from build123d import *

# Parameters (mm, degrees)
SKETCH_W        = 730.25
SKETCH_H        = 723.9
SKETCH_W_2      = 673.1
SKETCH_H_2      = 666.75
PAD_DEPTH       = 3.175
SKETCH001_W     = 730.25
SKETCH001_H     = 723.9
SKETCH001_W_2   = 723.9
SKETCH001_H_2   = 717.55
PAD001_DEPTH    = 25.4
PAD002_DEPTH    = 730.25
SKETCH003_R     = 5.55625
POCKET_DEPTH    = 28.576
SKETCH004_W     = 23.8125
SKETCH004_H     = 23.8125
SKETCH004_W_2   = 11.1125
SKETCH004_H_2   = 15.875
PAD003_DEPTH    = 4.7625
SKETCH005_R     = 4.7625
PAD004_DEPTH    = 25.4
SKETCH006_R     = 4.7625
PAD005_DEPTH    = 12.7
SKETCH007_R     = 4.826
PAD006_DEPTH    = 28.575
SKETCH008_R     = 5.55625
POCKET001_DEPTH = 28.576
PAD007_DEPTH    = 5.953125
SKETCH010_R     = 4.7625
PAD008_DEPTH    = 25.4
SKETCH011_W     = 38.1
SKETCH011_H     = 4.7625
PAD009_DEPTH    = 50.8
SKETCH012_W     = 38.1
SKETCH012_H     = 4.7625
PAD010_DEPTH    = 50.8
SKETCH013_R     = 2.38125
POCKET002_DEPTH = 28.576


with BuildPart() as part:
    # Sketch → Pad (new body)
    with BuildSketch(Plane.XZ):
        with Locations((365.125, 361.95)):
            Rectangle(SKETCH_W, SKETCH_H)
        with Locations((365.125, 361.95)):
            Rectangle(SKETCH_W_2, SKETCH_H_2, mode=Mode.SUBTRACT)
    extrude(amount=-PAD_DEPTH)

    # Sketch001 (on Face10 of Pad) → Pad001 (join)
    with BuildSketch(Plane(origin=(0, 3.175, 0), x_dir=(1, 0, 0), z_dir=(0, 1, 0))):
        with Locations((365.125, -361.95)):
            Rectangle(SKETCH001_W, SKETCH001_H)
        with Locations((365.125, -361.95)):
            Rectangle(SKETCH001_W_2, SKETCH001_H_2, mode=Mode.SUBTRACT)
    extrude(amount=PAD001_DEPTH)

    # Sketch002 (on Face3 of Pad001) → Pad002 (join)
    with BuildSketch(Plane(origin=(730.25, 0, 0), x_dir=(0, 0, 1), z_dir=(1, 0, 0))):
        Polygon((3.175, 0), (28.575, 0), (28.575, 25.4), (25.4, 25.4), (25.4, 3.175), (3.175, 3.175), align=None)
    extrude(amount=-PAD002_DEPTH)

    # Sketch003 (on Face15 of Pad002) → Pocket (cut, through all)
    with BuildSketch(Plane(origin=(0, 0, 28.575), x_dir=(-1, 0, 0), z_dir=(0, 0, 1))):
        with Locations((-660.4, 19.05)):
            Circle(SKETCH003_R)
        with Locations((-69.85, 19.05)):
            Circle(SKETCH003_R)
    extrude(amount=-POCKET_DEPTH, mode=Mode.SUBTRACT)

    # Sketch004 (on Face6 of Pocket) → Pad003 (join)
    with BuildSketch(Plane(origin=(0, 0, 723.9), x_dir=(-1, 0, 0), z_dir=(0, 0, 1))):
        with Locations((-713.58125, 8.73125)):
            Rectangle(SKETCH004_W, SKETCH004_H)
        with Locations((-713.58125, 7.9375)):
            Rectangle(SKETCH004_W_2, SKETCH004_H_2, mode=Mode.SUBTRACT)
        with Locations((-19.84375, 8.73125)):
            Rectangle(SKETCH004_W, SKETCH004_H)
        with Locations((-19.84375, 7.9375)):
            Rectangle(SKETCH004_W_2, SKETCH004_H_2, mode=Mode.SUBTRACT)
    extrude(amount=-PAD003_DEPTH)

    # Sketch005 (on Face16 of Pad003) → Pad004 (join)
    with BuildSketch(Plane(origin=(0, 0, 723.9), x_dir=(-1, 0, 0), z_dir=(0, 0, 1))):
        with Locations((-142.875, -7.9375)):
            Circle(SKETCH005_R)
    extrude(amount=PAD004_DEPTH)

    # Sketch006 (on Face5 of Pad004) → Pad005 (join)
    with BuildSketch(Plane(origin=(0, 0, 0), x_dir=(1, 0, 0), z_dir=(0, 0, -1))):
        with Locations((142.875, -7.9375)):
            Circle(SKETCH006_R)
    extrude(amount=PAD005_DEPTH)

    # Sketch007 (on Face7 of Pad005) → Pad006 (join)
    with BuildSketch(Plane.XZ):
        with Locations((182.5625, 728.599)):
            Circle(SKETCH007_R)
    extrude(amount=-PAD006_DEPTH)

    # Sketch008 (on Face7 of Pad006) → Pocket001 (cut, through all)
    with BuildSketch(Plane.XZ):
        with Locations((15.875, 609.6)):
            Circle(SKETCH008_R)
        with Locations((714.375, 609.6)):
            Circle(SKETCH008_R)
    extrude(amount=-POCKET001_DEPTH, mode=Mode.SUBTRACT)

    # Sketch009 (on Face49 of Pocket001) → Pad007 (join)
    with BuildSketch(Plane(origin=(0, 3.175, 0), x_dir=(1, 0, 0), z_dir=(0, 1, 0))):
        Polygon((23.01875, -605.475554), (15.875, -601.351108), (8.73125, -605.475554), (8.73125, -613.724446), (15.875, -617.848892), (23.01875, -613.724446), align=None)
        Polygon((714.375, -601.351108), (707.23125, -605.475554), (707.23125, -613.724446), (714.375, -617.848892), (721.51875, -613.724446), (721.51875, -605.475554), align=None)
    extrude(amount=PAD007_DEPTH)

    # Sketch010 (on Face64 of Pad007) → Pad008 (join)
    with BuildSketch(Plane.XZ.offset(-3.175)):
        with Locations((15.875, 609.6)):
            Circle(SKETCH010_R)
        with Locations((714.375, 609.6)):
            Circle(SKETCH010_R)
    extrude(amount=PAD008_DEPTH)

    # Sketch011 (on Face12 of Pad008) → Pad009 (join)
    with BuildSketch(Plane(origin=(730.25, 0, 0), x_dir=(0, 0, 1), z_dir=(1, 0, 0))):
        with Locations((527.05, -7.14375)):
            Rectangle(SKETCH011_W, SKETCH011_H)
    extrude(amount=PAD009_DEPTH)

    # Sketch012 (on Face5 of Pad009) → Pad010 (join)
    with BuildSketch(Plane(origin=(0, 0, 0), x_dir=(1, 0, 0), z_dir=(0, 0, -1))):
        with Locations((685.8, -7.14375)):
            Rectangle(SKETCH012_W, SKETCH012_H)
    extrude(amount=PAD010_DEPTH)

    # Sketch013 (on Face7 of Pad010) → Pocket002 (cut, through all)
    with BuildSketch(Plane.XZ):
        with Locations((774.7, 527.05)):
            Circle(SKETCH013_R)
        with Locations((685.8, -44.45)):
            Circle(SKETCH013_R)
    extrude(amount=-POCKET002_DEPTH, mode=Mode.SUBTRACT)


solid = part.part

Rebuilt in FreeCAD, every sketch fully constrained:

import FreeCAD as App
import Part
import Sketcher
from FreeCAD import Vector
Q = App.Units.Quantity


def add_polygon(sketch, points):
    """Adds a closed chain of lines whose ends are joined by coincident constraints."""
    first, n = sketch.GeometryCount, len(points)
    for a, b in zip(points, points[1:] + points[:1]):
        sketch.addGeometry(Part.LineSegment(App.Vector(*a, 0), App.Vector(*b, 0)), False)
    for i in range(n):
        sketch.addConstraint(Sketcher.Constraint("Coincident", first + i, 2, first + (i + 1) % n, 1))

doc = App.newDocument("Part")
body = doc.addObject("PartDesign::Body", "Body")

# Sketch on XZ plane
sketch1 = body.newObject("Sketcher::SketchObject", "Sketch")
sketch1.AttachmentSupport = (doc.getObject("XZ_Plane"), [""])
sketch1.MapMode = "FlatFace"
add_polygon(sketch1, [(0, 724), (0, 0), (730, 0), (730, 724)])  # lines 0-3
add_polygon(sketch1, [(702, 29), (29, 29), (29, 695), (702, 695)])  # lines 4-7
sketch1.addConstraint([
    Sketcher.Constraint("Vertical", 0),
    Sketcher.Constraint("Horizontal", 1),
    Sketcher.Constraint("Vertical", 2),
    Sketcher.Constraint("Horizontal", 3),
    Sketcher.Constraint("Horizontal", 4),
    Sketcher.Constraint("Vertical", 5),
    Sketcher.Constraint("Horizontal", 6),
    Sketcher.Constraint("Vertical", 7),
    Sketcher.Constraint("Coincident", 0, 2, -1, 1),
    Sketcher.Constraint("DistanceX", 4, 2, 4, 1, Q("26.5 in")),
    Sketcher.Constraint("DistanceY", 0, 2, 0, 1, Q("28.5 in")),
    Sketcher.Constraint("DistanceX", 1, 1, 1, 2, Q("28.75 in")),
    Sketcher.Constraint("DistanceY", 5, 1, 5, 2, Q("26.25 in")),
    Sketcher.Constraint("DistanceX", -1, 1, 4, 2, Q("1.125 in")),
    Sketcher.Constraint("DistanceY", -1, 1, 4, 2, Q("1.125 in")),
])
pad1 = body.newObject("PartDesign::Pad", "Pad")
pad1.Profile = sketch1
pad1.Length = Q("0.125 in")
pad1.Reversed = True

# Sketch on XZ plane
sketch2 = body.newObject("Sketcher::SketchObject", "Sketch001")
sketch2.AttachmentSupport = (doc.getObject("XZ_Plane"), [""])
sketch2.MapMode = "FlatFace"
sketch2.AttachmentOffset = App.Placement(Vector(0, 0, -0.125 * 25.4), App.Rotation())
add_polygon(sketch2, [(0, 0), (0, 724), (730, 724), (730, 0)])  # lines 0-3
add_polygon(sketch2, [(727, 721), (3, 721), (3, 3), (727, 3)])  # lines 4-7
sketch2.addConstraint([
    Sketcher.Constraint("Vertical", 0),
    Sketcher.Constraint("Horizontal", 1),
    Sketcher.Constraint("Vertical", 2),
    Sketcher.Constraint("Horizontal", 3),
    Sketcher.Constraint("Horizontal", 4),
    Sketcher.Constraint("Vertical", 5),
    Sketcher.Constraint("Horizontal", 6),
    Sketcher.Constraint("Vertical", 7),
    Sketcher.Constraint("Coincident", 3, 2, -1, 1),
    Sketcher.Constraint("Equal", 6, 0),
    Sketcher.Constraint("DistanceX", 4, 2, 4, 1, Q("28.5 in")),
    Sketcher.Constraint("DistanceX", 1, 1, 1, 2, Q("28.75 in")),
    Sketcher.Constraint("DistanceY", 5, 2, 5, 1, Q("28.25 in")),
    Sketcher.Constraint("DistanceX", -1, 1, 4, 2, Q("0.125 in")),
    Sketcher.Constraint("DistanceY", -1, 1, 4, 2, Q("28.375 in")),
])
pad2 = body.newObject("PartDesign::Pad", "Pad001")
pad2.Profile = sketch2
pad2.Length = Q("1 in")
pad2.Reversed = True

# Sketch on YZ plane
sketch3 = body.newObject("Sketcher::SketchObject", "Sketch002")
sketch3.AttachmentSupport = (doc.getObject("YZ_Plane"), [""])
sketch3.MapMode = "FlatFace"
sketch3.AttachmentOffset = App.Placement(Vector(0, 0, 28.75 * 25.4), App.Rotation())
add_polygon(sketch3, [(0, 3.2), (0, 28.6), (-25.4, 28.6), (-25.4, 25.4), (-3.2, 25.4), (-3.2, 3.2)])  # lines 0-5
sketch3.addConstraint([
    Sketcher.Constraint("Vertical", 0),
    Sketcher.Constraint("Horizontal", 1),
    Sketcher.Constraint("Vertical", 2),
    Sketcher.Constraint("Horizontal", 3),
    Sketcher.Constraint("Vertical", 4),
    Sketcher.Constraint("Horizontal", 5),
    Sketcher.Constraint("PointOnObject", 0, 2, -2),
    Sketcher.Constraint("Equal", 1, 0),
    Sketcher.Constraint("Equal", 5, 2),
    Sketcher.Constraint("DistanceX", 1, 2, 1, 1, Q("1 in")),
    Sketcher.Constraint("DistanceY", -1, 1, 2, 2, Q("1 in")),
    Sketcher.Constraint("DistanceX", 3, 1, 3, 2, Q("0.875 in")),
])
pad3 = body.newObject("PartDesign::Pad", "Pad002")
pad3.Profile = sketch3
pad3.Length = Q("28.75 in")
pad3.Reversed = True

# Sketch on XY plane
sketch4 = body.newObject("Sketcher::SketchObject", "Sketch003")
sketch4.AttachmentSupport = (doc.getObject("XY_Plane"), [""])
sketch4.MapMode = "FlatFace"
sketch4.AttachmentOffset = App.Placement(Vector(0, 0, 1.125 * 25.4), App.Rotation())
sketch4.addGeometry([
    Part.Circle(Vector(660, -19, 0), Vector(0, 0, 1), 6),
    Part.Circle(Vector(70, -19, 0), Vector(0, 0, 1), 6),
], False)
sketch4.addConstraint([
    Sketcher.Constraint("Equal", 0, 1),
    Sketcher.Constraint("Horizontal", 0, 3, 1, 3),
    Sketcher.Constraint("Diameter", 0, Q("0.4375 in")),
    Sketcher.Constraint("DistanceX", -1, 1, 0, 3, Q("26 in")),
    Sketcher.Constraint("DistanceY", 0, 3, -1, 1, Q("0.75 in")),
    Sketcher.Constraint("DistanceX", -1, 1, 1, 3, Q("2.75 in")),
])
pocket1 = body.newObject("PartDesign::Pocket", "Pocket")
pocket1.Profile = sketch4
pocket1.Type = "ThroughAll"

# Sketch on XY plane
sketch5 = body.newObject("Sketcher::SketchObject", "Sketch004")
sketch5.AttachmentSupport = (doc.getObject("XY_Plane"), [""])
sketch5.MapMode = "FlatFace"
sketch5.AttachmentOffset = App.Placement(Vector(0, 0, 28.5 * 25.4), App.Rotation())
add_polygon(sketch5, [(725, -21), (725, 3), (702, 3), (702, -21)])  # lines 0-3
add_polygon(sketch5, [(708, 0), (719, 0), (719, -16), (708, -16)])  # lines 4-7
add_polygon(sketch5, [(32, -21), (32, 3), (8, 3), (8, -21)])  # lines 8-11
add_polygon(sketch5, [(14, 0), (25, 0), (25, -16), (14, -16)])  # lines 12-15
sketch5.addConstraint([
    Sketcher.Constraint("Vertical", 0),
    Sketcher.Constraint("Horizontal", 1),
    Sketcher.Constraint("Vertical", 2),
    Sketcher.Constraint("Horizontal", 3),
    Sketcher.Constraint("Horizontal", 4),
    Sketcher.Constraint("Vertical", 5),
    Sketcher.Constraint("Horizontal", 6),
    Sketcher.Constraint("Vertical", 7),
    Sketcher.Constraint("Vertical", 8),
    Sketcher.Constraint("Horizontal", 9),
    Sketcher.Constraint("Vertical", 10),
    Sketcher.Constraint("Horizontal", 11),
    Sketcher.Constraint("Horizontal", 12),
    Sketcher.Constraint("Vertical", 13),
    Sketcher.Constraint("Horizontal", 14),
    Sketcher.Constraint("Vertical", 15),
    Sketcher.Constraint("PointOnObject", 4, 2, -1),
    Sketcher.Constraint("PointOnObject", 12, 2, -1),
    Sketcher.Constraint("Horizontal", 1, 2, 8, 2),
    Sketcher.Constraint("Horizontal", 3, 2, 10, 2),
    Sketcher.Constraint("Horizontal", 6, 2, 13, 2),
    Sketcher.Constraint("Equal", 3, 9),
    Sketcher.Constraint("Equal", 6, 12),
    Sketcher.Constraint("Equal", 11, 0),
    Sketcher.Constraint("DistanceX", -1, 1, 12, 2, Q("1 in")),
    Sketcher.Constraint("DistanceX", 1, 2, 1, 1, Q("0.9375 in")),
    Sketcher.Constraint("DistanceX", 4, 1, 4, 2, Q("0.4375 in")),
    Sketcher.Constraint("DistanceY", 5, 2, 5, 1, Q("0.625 in")),
    Sketcher.Constraint("DistanceX", -1, 1, 8, 2, Q("1.25 in")),
    Sketcher.Constraint("DistanceX", 4, 2, 0, 2, Q("0.25 in")),
    Sketcher.Constraint("DistanceY", 5, 2, 0, 2, Q("0.75 in")),
    Sketcher.Constraint("DistanceX", -1, 1, 0, 2, Q("28.5625 in")),
])
pad4 = body.newObject("PartDesign::Pad", "Pad003")
pad4.Profile = sketch5
pad4.Length = Q("0.1875 in")
pad4.Reversed = True

# Sketch on XY plane
sketch6 = body.newObject("Sketcher::SketchObject", "Sketch005")
sketch6.AttachmentSupport = (doc.getObject("XY_Plane"), [""])
sketch6.MapMode = "FlatFace"
sketch6.AttachmentOffset = App.Placement(Vector(0, 0, 28.5 * 25.4), App.Rotation())
sketch6.addGeometry(Part.Circle(Vector(142.9, 7.9, 0), Vector(0, 0, 1), 4.8), False)
sketch6.addConstraint([
    Sketcher.Constraint("Diameter", 0, Q("0.375 in")),
    Sketcher.Constraint("DistanceX", -1, 1, 0, 3, Q("5.625 in")),
    Sketcher.Constraint("DistanceY", -1, 1, 0, 3, Q("0.3125 in")),
])
pad5 = body.newObject("PartDesign::Pad", "Pad004")
pad5.Profile = sketch6
pad5.Length = Q("1 in")

# Sketch on XY plane
sketch7 = body.newObject("Sketcher::SketchObject", "Sketch006")
sketch7.AttachmentSupport = (doc.getObject("XY_Plane"), [""])
sketch7.MapMode = "FlatFace"
sketch7.addGeometry(Part.Circle(Vector(142.9, 7.9, 0), Vector(0, 0, 1), 4.8), False)
sketch7.addConstraint([
    Sketcher.Constraint("Diameter", 0, Q("0.375 in")),
    Sketcher.Constraint("DistanceX", -1, 1, 0, 3, Q("5.625 in")),
    Sketcher.Constraint("DistanceY", -1, 1, 0, 3, Q("0.3125 in")),
])
pad6 = body.newObject("PartDesign::Pad", "Pad005")
pad6.Profile = sketch7
pad6.Length = Q("0.5 in")
pad6.Reversed = True

# Sketch on XZ plane
sketch8 = body.newObject("Sketcher::SketchObject", "Sketch007")
sketch8.AttachmentSupport = (doc.getObject("XZ_Plane"), [""])
sketch8.MapMode = "FlatFace"
sketch8.addGeometry(Part.Circle(Vector(182.6, 728.6, 0), Vector(0, 0, 1), 4.8), False)
sketch8.addConstraint([
    Sketcher.Constraint("Diameter", 0, Q("0.38 in")),
    Sketcher.Constraint("DistanceX", -1, 1, 0, 3, Q("7.1875 in")),
    Sketcher.Constraint("DistanceY", -1, 1, 0, 3, Q("28.685 in")),
])
pad7 = body.newObject("PartDesign::Pad", "Pad006")
pad7.Profile = sketch8
pad7.Length = Q("1.125 in")
pad7.Reversed = True

# Sketch on XZ plane
sketch9 = body.newObject("Sketcher::SketchObject", "Sketch008")
sketch9.AttachmentSupport = (doc.getObject("XZ_Plane"), [""])
sketch9.MapMode = "FlatFace"
sketch9.addGeometry([
    Part.Circle(Vector(16, 610, 0), Vector(0, 0, 1), 6),
    Part.Circle(Vector(714, 610, 0), Vector(0, 0, 1), 6),
], False)
sketch9.addConstraint([
    Sketcher.Constraint("Equal", 0, 1),
    Sketcher.Constraint("Horizontal", 0, 3, 1, 3),
    Sketcher.Constraint("Diameter", 0, Q("0.4375 in")),
    Sketcher.Constraint("DistanceY", -1, 1, 0, 3, Q("24 in")),
    Sketcher.Constraint("DistanceX", 0, 3, 1, 3, Q("27.5 in")),
    Sketcher.Constraint("DistanceX", -1, 1, 0, 3, Q("0.625 in")),
])
pocket2 = body.newObject("PartDesign::Pocket", "Pocket001")
pocket2.Profile = sketch9
pocket2.Type = "ThroughAll"

# Sketch on XZ plane
sketch10 = body.newObject("Sketcher::SketchObject", "Sketch009")
sketch10.AttachmentSupport = (doc.getObject("XZ_Plane"), [""])
sketch10.MapMode = "FlatFace"
sketch10.AttachmentOffset = App.Placement(Vector(0, 0, -0.125 * 25.4), App.Rotation())
add_polygon(sketch10, [(23, 605), (16, 601), (9, 605), (9, 614), (16, 618), (23, 614)])  # lines 0-5
add_polygon(sketch10, [(714, 601), (707, 605), (707, 614), (714, 618), (722, 614), (722, 605)])  # lines 6-11
sketch10.addConstraint([
    Sketcher.Constraint("Vertical", 2),
    Sketcher.Constraint("Vertical", 5),
    Sketcher.Constraint("Vertical", 7),
    Sketcher.Constraint("Vertical", 10),
    Sketcher.Constraint("Parallel", 0, 3),
    Sketcher.Constraint("Parallel", 1, 4),
    Sketcher.Constraint("Parallel", 4, 6),
    Sketcher.Constraint("Parallel", 3, 8),
    Sketcher.Constraint("Parallel", 6, 9),
    Sketcher.Constraint("Parallel", 8, 11),
    Sketcher.Constraint("Horizontal", 2, 2, 4, 2),
    Sketcher.Constraint("Horizontal", 1, 2, 5, 2),
    Sketcher.Constraint("Horizontal", 5, 2, 6, 2),
    Sketcher.Constraint("Horizontal", 4, 2, 7, 2),
    Sketcher.Constraint("Horizontal", 3, 2, 8, 2),
    Sketcher.Constraint("Horizontal", 7, 2, 9, 2),
    Sketcher.Constraint("Horizontal", 6, 2, 10, 2),
    Sketcher.Constraint("Vertical", 0, 2, 3, 2),
    Sketcher.Constraint("Angle", 0, Q("-150 deg")),
    Sketcher.Constraint("DistanceX", 1, 2, 6, 2, Q("27.5 in")),
    Sketcher.Constraint("DistanceX", -1, 1, 0, 2, Q("0.625 in")),
    Sketcher.Constraint("DistanceX", -1, 1, 1, 2, Q("0.34375 in")),
    Sketcher.Constraint("DistanceY", 2, 1, 2, 2, 8.248892),
    Sketcher.Constraint("DistanceY", -1, 1, 0, 2, 601.351108),
])
pad8 = body.newObject("PartDesign::Pad", "Pad007")
pad8.Profile = sketch10
pad8.Length = Q("0.234375 in")
pad8.Reversed = True

# Sketch on XZ plane
sketch11 = body.newObject("Sketcher::SketchObject", "Sketch010")
sketch11.AttachmentSupport = (doc.getObject("XZ_Plane"), [""])
sketch11.MapMode = "FlatFace"
sketch11.AttachmentOffset = App.Placement(Vector(0, 0, -0.125 * 25.4), App.Rotation())
sketch11.addGeometry([
    Part.Circle(Vector(15.9, 609.6, 0), Vector(0, 0, 1), 4.8),
    Part.Circle(Vector(714.4, 609.6, 0), Vector(0, 0, 1), 4.8),
], False)
sketch11.addConstraint([
    Sketcher.Constraint("Equal", 0, 1),
    Sketcher.Constraint("Horizontal", 0, 3, 1, 3),
    Sketcher.Constraint("Diameter", 0, Q("0.375 in")),
    Sketcher.Constraint("DistanceY", -1, 1, 0, 3, Q("24 in")),
    Sketcher.Constraint("DistanceX", 0, 3, 1, 3, Q("27.5 in")),
    Sketcher.Constraint("DistanceX", -1, 1, 0, 3, Q("0.625 in")),
])
pad9 = body.newObject("PartDesign::Pad", "Pad008")
pad9.Profile = sketch11
pad9.Length = Q("1 in")

# Sketch on YZ plane
sketch12 = body.newObject("Sketcher::SketchObject", "Sketch011")
sketch12.AttachmentSupport = (doc.getObject("YZ_Plane"), [""])
sketch12.MapMode = "FlatFace"
sketch12.AttachmentOffset = App.Placement(Vector(0, 0, 28.75 * 25.4), App.Rotation())
add_polygon(sketch12, [(4.8, 508), (9.5, 508), (9.5, 546.1), (4.8, 546.1)])  # lines 0-3
sketch12.addConstraint([
    Sketcher.Constraint("Horizontal", 0),
    Sketcher.Constraint("Vertical", 1),
    Sketcher.Constraint("Horizontal", 2),
    Sketcher.Constraint("Vertical", 3),
    Sketcher.Constraint("DistanceY", 1, 1, 1, 2, Q("1.5 in")),
    Sketcher.Constraint("DistanceY", -1, 1, 0, 2, Q("20 in")),
    Sketcher.Constraint("DistanceX", 0, 1, 0, 2, Q("0.1875 in")),
    Sketcher.Constraint("DistanceX", -1, 1, 0, 2, Q("0.375 in")),
])
pad10 = body.newObject("PartDesign::Pad", "Pad009")
pad10.Profile = sketch12
pad10.Length = Q("2 in")

# Sketch on XY plane
sketch13 = body.newObject("Sketcher::SketchObject", "Sketch012")
sketch13.AttachmentSupport = (doc.getObject("XY_Plane"), [""])
sketch13.MapMode = "FlatFace"
add_polygon(sketch13, [(666.8, 4.8), (666.8, 9.5), (704.9, 9.5), (704.9, 4.8)])  # lines 0-3
sketch13.addConstraint([
    Sketcher.Constraint("Vertical", 0),
    Sketcher.Constraint("Horizontal", 1),
    Sketcher.Constraint("Vertical", 2),
    Sketcher.Constraint("Horizontal", 3),
    Sketcher.Constraint("DistanceX", 1, 1, 1, 2, Q("1.5 in")),
    Sketcher.Constraint("DistanceY", 0, 1, 0, 2, Q("0.1875 in")),
    Sketcher.Constraint("DistanceX", -1, 1, 0, 2, Q("26.25 in")),
    Sketcher.Constraint("DistanceY", -1, 1, 0, 2, Q("0.375 in")),
])
pad11 = body.newObject("PartDesign::Pad", "Pad010")
pad11.Profile = sketch13
pad11.Length = Q("2 in")
pad11.Reversed = True

# Sketch on XZ plane
sketch14 = body.newObject("Sketcher::SketchObject", "Sketch013")
sketch14.AttachmentSupport = (doc.getObject("XZ_Plane"), [""])
sketch14.MapMode = "FlatFace"
sketch14.addGeometry([
    Part.Circle(Vector(774.7, 527, 0), Vector(0, 0, 1), 2.4),
    Part.Circle(Vector(685.8, -44.5, 0), Vector(0, 0, 1), 2.4),
], False)
sketch14.addConstraint([
    Sketcher.Constraint("Equal", 0, 1),
    Sketcher.Constraint("Diameter", 0, Q("0.1875 in")),
    Sketcher.Constraint("DistanceX", -1, 1, 1, 3, Q("27 in")),
    Sketcher.Constraint("DistanceX", -1, 1, 0, 3, Q("30.5 in")),
    Sketcher.Constraint("DistanceY", 1, 3, 0, 3, Q("22.5 in")),
    Sketcher.Constraint("DistanceY", -1, 1, 0, 3, Q("20.75 in")),
])
pocket3 = body.newObject("PartDesign::Pocket", "Pocket002")
pocket3.Profile = sketch14
pocket3.Type = "ThroughAll"

doc.recompute()
